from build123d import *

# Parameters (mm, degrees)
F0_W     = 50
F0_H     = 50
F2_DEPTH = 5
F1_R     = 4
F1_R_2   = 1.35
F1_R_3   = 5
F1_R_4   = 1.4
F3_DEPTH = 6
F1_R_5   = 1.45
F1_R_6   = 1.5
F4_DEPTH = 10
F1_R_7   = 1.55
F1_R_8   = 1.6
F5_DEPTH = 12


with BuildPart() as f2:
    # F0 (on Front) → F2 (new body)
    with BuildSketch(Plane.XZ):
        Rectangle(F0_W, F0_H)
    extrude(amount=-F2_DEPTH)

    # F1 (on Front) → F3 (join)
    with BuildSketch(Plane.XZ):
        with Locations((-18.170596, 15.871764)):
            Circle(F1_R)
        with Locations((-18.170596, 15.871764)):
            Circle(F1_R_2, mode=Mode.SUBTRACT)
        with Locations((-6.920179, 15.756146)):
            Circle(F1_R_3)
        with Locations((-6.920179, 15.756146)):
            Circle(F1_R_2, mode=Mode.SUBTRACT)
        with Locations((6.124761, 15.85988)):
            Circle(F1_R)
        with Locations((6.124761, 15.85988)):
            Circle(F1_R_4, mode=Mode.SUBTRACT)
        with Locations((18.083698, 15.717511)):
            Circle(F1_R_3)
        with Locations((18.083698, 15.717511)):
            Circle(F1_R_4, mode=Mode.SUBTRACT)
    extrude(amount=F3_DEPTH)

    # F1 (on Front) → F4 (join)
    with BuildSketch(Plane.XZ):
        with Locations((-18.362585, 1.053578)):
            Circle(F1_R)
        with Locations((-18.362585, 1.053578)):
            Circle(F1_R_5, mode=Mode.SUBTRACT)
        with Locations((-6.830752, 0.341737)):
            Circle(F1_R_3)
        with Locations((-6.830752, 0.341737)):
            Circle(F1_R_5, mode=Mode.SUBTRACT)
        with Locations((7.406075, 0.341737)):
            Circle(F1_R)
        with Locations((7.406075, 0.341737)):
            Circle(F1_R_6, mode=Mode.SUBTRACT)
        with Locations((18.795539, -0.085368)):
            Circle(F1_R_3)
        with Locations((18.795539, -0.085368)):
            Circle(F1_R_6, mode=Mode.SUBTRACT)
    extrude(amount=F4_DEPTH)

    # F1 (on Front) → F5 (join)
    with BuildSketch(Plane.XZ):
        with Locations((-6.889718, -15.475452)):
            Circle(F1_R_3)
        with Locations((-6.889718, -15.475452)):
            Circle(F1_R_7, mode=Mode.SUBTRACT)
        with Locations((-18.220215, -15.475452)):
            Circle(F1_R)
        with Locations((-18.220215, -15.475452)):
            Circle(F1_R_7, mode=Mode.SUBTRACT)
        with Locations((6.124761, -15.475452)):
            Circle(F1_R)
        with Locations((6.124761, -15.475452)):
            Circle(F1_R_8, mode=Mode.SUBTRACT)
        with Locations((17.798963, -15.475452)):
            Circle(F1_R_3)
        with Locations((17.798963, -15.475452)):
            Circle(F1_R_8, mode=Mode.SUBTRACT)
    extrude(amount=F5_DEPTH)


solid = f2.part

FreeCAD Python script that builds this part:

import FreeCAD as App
import Part
import Sketcher

V = App.Vector
Q = App.Units.Quantity


def add_polygon(sketch, points):
    """Adds a closed chain of lines whose ends are joined by coincident constraints."""
    first, n = sketch.GeometryCount, len(points)
    for a, b in zip(points, points[1:] + points[:1]):
        sketch.addGeometry(Part.LineSegment(App.Vector(*a, 0), App.Vector(*b, 0)), False)
    for i in range(n):
        sketch.addConstraint(Sketcher.Constraint("Coincident", first + i, 2, first + (i + 1) % n, 1))

doc = App.newDocument("Part")
params = doc.addObject("Spreadsheet::Sheet", "Params")
for row, (alias, value) in enumerate([
    ("sketch1_width", "50 mm"),
    ("pad1_length", "5 mm"),
    ("sketch2_diameter", "8 mm"),
    ("sketch2_diameter2", "10 mm"),
    ("sketch2_diameter3", "2.7 mm"),
    ("sketch2_diameter4", "2.8 mm"),
    ("pad2_length", "6 mm"),
    ("sketch3_diameter", "8 mm"),
    ("sketch3_diameter2", "10 mm"),
    ("sketch3_diameter3", "3 mm"),
    ("sketch3_diameter4", "2.9 mm"),
    ("pad3_length", "10 mm"),
    ("sketch4_diameter", "10 mm"),
    ("sketch4_diameter2", "8 mm"),
    ("sketch4_diameter3", "3.1 mm"),
    ("sketch4_diameter4", "3.2 mm"),
    ("pad4_length", "12 mm"),
], start=1):
    params.set(f"A{row}", alias)
    params.set(f"B{row}", "=" + value)
    params.setAlias(f"B{row}", alias)

body = doc.addObject("PartDesign::Body", "Body")

# Sketch on XZ plane
sketch1 = doc.addObject("Sketcher::SketchObject", "Sketch")
body.addObject(sketch1)
sketch1.AttachmentSupport = (doc.XZ_Plane, [""])
sketch1.MapMode = "FlatFace"
add_polygon(sketch1, [(-25, 25), (-25, -25), (25, -25), (25, 25)])  # lines 0-3
sketch1.addConstraint(Sketcher.Constraint("Vertical", 0))
sketch1.addConstraint(Sketcher.Constraint("Horizontal", 1))
sketch1.addConstraint(Sketcher.Constraint("Vertical", 2))
sketch1.addConstraint(Sketcher.Constraint("Horizontal", 3))
sketch1.addConstraint(Sketcher.Constraint("Symmetric", 0, 2, 2, 2, -1, 1))
sketch1.addConstraint(Sketcher.Constraint("Equal", 3, 0))
sketch1.addConstraint(Sketcher.Constraint("DistanceX", 1, 1, 1, 2, Q("50 mm")))
sketch1.setExpression("Constraints[10]", "Params.sketch1_width")
pad1 = doc.addObject("PartDesign::Pad", "Pad")
body.addObject(pad1)
pad1.Profile = sketch1
pad1.setExpression("Length", "Params.pad1_length")
pad1.Reversed = True

# Sketch on XZ plane
sketch2 = doc.addObject("Sketcher::SketchObject", "Sketch001")
body.addObject(sketch2)
sketch2.AttachmentSupport = (doc.XZ_Plane, [""])
sketch2.MapMode = "FlatFace"
sketch2.addGeometry(Part.Circle(V(-18.2, 15.9, 0), V(0, 0, 1), 4), False)
sketch2.addGeometry(Part.Circle(V(-18.2, 15.9, 0), V(0, 0, 1), 1.4), False)
sketch2.addGeometry(Part.Circle(V(-6.9, 15.8, 0), V(0, 0, 1), 5), False)
sketch2.addGeometry(Part.Circle(V(-6.9, 15.8, 0), V(0, 0, 1), 1.4), False)
sketch2.addGeometry(Part.Circle(V(6.1, 15.9, 0), V(0, 0, 1), 4), False)
sketch2.addGeometry(Part.Circle(V(6.1, 15.9, 0), V(0, 0, 1), 1.4), False)
sketch2.addGeometry(Part.Circle(V(18.1, 15.7, 0), V(0, 0, 1), 5), False)
sketch2.addGeometry(Part.Circle(V(18.1, 15.7, 0), V(0, 0, 1), 1.4), False)
sketch2.addConstraint(Sketcher.Constraint("Coincident", 1, 3, 0, 3))
sketch2.addConstraint(Sketcher.Constraint("Coincident", 3, 3, 2, 3))
sketch2.addConstraint(Sketcher.Constraint("Coincident", 5, 3, 4, 3))
sketch2.addConstraint(Sketcher.Constraint("Coincident", 7, 3, 6, 3))
sketch2.addConstraint(Sketcher.Constraint("Equal", 1, 3))
sketch2.addConstraint(Sketcher.Constraint("Equal", 0, 4))
sketch2.addConstraint(Sketcher.Constraint("Equal", 2, 6))
sketch2.addConstraint(Sketcher.Constraint("Equal", 5, 7))
sketch2.addConstraint(Sketcher.Constraint("Diameter", 0, Q("8 mm")))
sketch2.addConstraint(Sketcher.Constraint("Diameter", 2, Q("10 mm")))
sketch2.addConstraint(Sketcher.Constraint("Diameter", 1, Q("2.7 mm")))
sketch2.addConstraint(Sketcher.Constraint("Diameter", 5, Q("2.8 mm")))
sketch2.addConstraint(Sketcher.Constraint("DistanceX", 2, 3, -1, 1, Q("6.920179 mm")))
sketch2.addConstraint(Sketcher.Constraint("DistanceX", -1, 1, 4, 3, Q("6.124761 mm")))
sketch2.addConstraint(Sketcher.Constraint("DistanceY", -1, 1, 4, 3, Q("15.85988 mm")))
sketch2.addConstraint(Sketcher.Constraint("DistanceY", -1, 1, 6, 3, Q("15.717511 mm")))
sketch2.addConstraint(Sketcher.Constraint("DistanceY", 2, 3, 0, 3, Q("0.115618 mm")))
sketch2.addConstraint(Sketcher.Constraint("DistanceX", 0, 3, -1, 1, Q("18.170596 mm")))
sketch2.addConstraint(Sketcher.Constraint("DistanceY", -1, 1, 0, 3, Q("15.871764 mm")))
sketch2.addConstraint(Sketcher.Constraint("DistanceX", -1, 1, 6, 3, Q("18.083698 mm")))
sketch2.setExpression("Constraints[8]", "Params.sketch2_diameter")
sketch2.setExpression("Constraints[9]", "Params.sketch2_diameter2")
sketch2.setExpression("Constraints[10]", "Params.sketch2_diameter3")
sketch2.setExpression("Constraints[11]", "Params.sketch2_diameter4")
pad2 = doc.addObject("PartDesign::Pad", "Pad001")
body.addObject(pad2)
pad2.Profile = sketch2
pad2.setExpression("Length", "Params.pad2_length")

# Sketch on XZ plane
sketch3 = doc.addObject("Sketcher::SketchObject", "Sketch002")
body.addObject(sketch3)
sketch3.AttachmentSupport = (doc.XZ_Plane, [""])
sketch3.MapMode = "FlatFace"
sketch3.addGeometry(Part.Circle(V(-18.4, 1.1, 0), V(0, 0, 1), 4), False)
sketch3.addGeometry(Part.Circle(V(-18.4, 1.1, 0), V(0, 0, 1), 1.4), False)
sketch3.addGeometry(Part.Circle(V(-6.8, 0.3, 0), V(0, 0, 1), 5), False)
sketch3.addGeometry(Part.Circle(V(-6.8, 0.3, 0), V(0, 0, 1), 1.4), False)
sketch3.addGeometry(Part.Circle(V(7.4, 0.3, 0), V(0, 0, 1), 4), False)
sketch3.addGeometry(Part.Circle(V(7.4, 0.3, 0), V(0, 0, 1), 1.5), False)
sketch3.addGeometry(Part.Circle(V(18.8, -0.1, 0), V(0, 0, 1), 5), False)
sketch3.addGeometry(Part.Circle(V(18.8, -0.1, 0), V(0, 0, 1), 1.5), False)
sketch3.addConstraint(Sketcher.Constraint("Coincident", 1, 3, 0, 3))
sketch3.addConstraint(Sketcher.Constraint("Coincident", 3, 3, 2, 3))
sketch3.addConstraint(Sketcher.Constraint("Coincident", 5, 3, 4, 3))
sketch3.addConstraint(Sketcher.Constraint("Coincident", 7, 3, 6, 3))
sketch3.addConstraint(Sketcher.Constraint("Equal", 1, 3))
sketch3.addConstraint(Sketcher.Constraint("Equal", 0, 4))
sketch3.addConstraint(Sketcher.Constraint("Equal", 2, 6))
sketch3.addConstraint(Sketcher.Constraint("Equal", 5, 7))
sketch3.addConstraint(Sketcher.Constraint("Horizontal", 3, 3, 4, 3))
sketch3.addConstraint(Sketcher.Constraint("Diameter", 0, Q("8 mm")))
sketch3.addConstraint(Sketcher.Constraint("Diameter", 2, Q("10 mm")))
sketch3.addConstraint(Sketcher.Constraint("Diameter", 5, Q("3 mm")))
sketch3.addConstraint(Sketcher.Constraint("Diameter", 1, Q("2.9 mm")))
sketch3.addConstraint(Sketcher.Constraint("DistanceX", -1, 1, 6, 3, Q("18.795539 mm")))
sketch3.addConstraint(Sketcher.Constraint("DistanceY", 2, 3, 0, 3, Q("0.711841 mm")))
sketch3.addConstraint(Sketcher.Constraint("DistanceX", 0, 3, 4, 3, Q("25.76866 mm")))
sketch3.addConstraint(Sketcher.Constraint("DistanceX", 2, 3, 6, 3, Q("25.626291 mm")))
sketch3.addConstraint(Sketcher.Constraint("DistanceX", 0, 3, -1, 1, Q("18.362585 mm")))
sketch3.addConstraint(Sketcher.Constraint("DistanceY", -1, 1, 0, 3, Q("1.053578 mm")))
sketch3.addConstraint(Sketcher.Constraint("DistanceY", 6, 3, -1, 1, Q("0.085368 mm")))
sketch3.setExpression("Constraints[9]", "Params.sketch3_diameter")
sketch3.setExpression("Constraints[10]", "Params.sketch3_diameter2")
sketch3.setExpression("Constraints[11]", "Params.sketch3_diameter3")
sketch3.setExpression("Constraints[12]", "Params.sketch3_diameter4")
pad3 = doc.addObject("PartDesign::Pad", "Pad002")
body.addObject(pad3)
pad3.Profile = sketch3
pad3.setExpression("Length", "Params.pad3_length")

# Sketch on XZ plane
sketch4 = doc.addObject("Sketcher::SketchObject", "Sketch003")
body.addObject(sketch4)
sketch4.AttachmentSupport = (doc.XZ_Plane, [""])
sketch4.MapMode = "FlatFace"
sketch4.addGeometry(Part.Circle(V(-6.9, -15.5, 0), V(0, 0, 1), 5), False)
sketch4.addGeometry(Part.Circle(V(-6.9, -15.5, 0), V(0, 0, 1), 1.6), False)
sketch4.addGeometry(Part.Circle(V(-18.2, -15.5, 0), V(0, 0, 1), 4), False)
sketch4.addGeometry(Part.Circle(V(-18.2, -15.5, 0), V(0, 0, 1), 1.6), False)
sketch4.addGeometry(Part.Circle(V(6.1, -15.5, 0), V(0, 0, 1), 4), False)
sketch4.addGeometry(Part.Circle(V(6.1, -15.5, 0), V(0, 0, 1), 1.6), False)
sketch4.addGeometry(Part.Circle(V(17.8, -15.5, 0), V(0, 0, 1), 5), False)
sketch4.addGeometry(Part.Circle(V(17.8, -15.5, 0), V(0, 0, 1), 1.6), False)
sketch4.addConstraint(Sketcher.Constraint("Coincident", 1, 3, 0, 3))
sketch4.addConstraint(Sketcher.Constraint("Coincident", 3, 3, 2, 3))
sketch4.addConstraint(Sketcher.Constraint("Coincident", 5, 3, 4, 3))
sketch4.addConstraint(Sketcher.Constraint("Coincident", 7, 3, 6, 3))
sketch4.addConstraint(Sketcher.Constraint("Equal", 1, 3))
sketch4.addConstraint(Sketcher.Constraint("Equal", 2, 4))
sketch4.addConstraint(Sketcher.Constraint("Equal", 0, 6))
sketch4.addConstraint(Sketcher.Constraint("Equal", 5, 7))
sketch4.addConstraint(Sketcher.Constraint("Horizontal", 1, 3, 2, 3))
sketch4.addConstraint(Sketcher.Constraint("Horizontal", 3, 3, 4, 3))
sketch4.addConstraint(Sketcher.Constraint("Horizontal", 5, 3, 6, 3))
sketch4.addConstraint(Sketcher.Constraint("Diameter", 0, Q("10 mm")))
sketch4.addConstraint(Sketcher.Constraint("Diameter", 2, Q("8 mm")))
sketch4.addConstraint(Sketcher.Constraint("Diameter", 1, Q("3.1 mm")))
sketch4.addConstraint(Sketcher.Constraint("Diameter", 5, Q("3.2 mm")))
sketch4.addConstraint(Sketcher.Constraint("DistanceX", 0, 3, -1, 1, Q("6.889718 mm")))
sketch4.addConstraint(Sketcher.Constraint("DistanceX", -1, 1, 4, 3, Q("6.124761 mm")))
sketch4.addConstraint(Sketcher.Constraint("DistanceX", 0, 3, 6, 3, Q("24.688681 mm")))
sketch4.addConstraint(Sketcher.Constraint("DistanceY", 0, 3, -1, 1, Q("15.475452 mm")))
sketch4.addConstraint(Sketcher.Constraint("DistanceX", 2, 3, -1, 1, Q("18.220215 mm")))
sketch4.setExpression("Constraints[11]", "Params.sketch4_diameter")
sketch4.setExpression("Constraints[12]", "Params.sketch4_diameter2")
sketch4.setExpression("Constraints[13]", "Params.sketch4_diameter3")
sketch4.setExpression("Constraints[14]", "Params.sketch4_diameter4")
pad4 = doc.addObject("PartDesign::Pad", "Pad003")
body.addObject(pad4)
pad4.Profile = sketch4
pad4.setExpression("Length", "Params.pad4_length")

doc.recompute()
